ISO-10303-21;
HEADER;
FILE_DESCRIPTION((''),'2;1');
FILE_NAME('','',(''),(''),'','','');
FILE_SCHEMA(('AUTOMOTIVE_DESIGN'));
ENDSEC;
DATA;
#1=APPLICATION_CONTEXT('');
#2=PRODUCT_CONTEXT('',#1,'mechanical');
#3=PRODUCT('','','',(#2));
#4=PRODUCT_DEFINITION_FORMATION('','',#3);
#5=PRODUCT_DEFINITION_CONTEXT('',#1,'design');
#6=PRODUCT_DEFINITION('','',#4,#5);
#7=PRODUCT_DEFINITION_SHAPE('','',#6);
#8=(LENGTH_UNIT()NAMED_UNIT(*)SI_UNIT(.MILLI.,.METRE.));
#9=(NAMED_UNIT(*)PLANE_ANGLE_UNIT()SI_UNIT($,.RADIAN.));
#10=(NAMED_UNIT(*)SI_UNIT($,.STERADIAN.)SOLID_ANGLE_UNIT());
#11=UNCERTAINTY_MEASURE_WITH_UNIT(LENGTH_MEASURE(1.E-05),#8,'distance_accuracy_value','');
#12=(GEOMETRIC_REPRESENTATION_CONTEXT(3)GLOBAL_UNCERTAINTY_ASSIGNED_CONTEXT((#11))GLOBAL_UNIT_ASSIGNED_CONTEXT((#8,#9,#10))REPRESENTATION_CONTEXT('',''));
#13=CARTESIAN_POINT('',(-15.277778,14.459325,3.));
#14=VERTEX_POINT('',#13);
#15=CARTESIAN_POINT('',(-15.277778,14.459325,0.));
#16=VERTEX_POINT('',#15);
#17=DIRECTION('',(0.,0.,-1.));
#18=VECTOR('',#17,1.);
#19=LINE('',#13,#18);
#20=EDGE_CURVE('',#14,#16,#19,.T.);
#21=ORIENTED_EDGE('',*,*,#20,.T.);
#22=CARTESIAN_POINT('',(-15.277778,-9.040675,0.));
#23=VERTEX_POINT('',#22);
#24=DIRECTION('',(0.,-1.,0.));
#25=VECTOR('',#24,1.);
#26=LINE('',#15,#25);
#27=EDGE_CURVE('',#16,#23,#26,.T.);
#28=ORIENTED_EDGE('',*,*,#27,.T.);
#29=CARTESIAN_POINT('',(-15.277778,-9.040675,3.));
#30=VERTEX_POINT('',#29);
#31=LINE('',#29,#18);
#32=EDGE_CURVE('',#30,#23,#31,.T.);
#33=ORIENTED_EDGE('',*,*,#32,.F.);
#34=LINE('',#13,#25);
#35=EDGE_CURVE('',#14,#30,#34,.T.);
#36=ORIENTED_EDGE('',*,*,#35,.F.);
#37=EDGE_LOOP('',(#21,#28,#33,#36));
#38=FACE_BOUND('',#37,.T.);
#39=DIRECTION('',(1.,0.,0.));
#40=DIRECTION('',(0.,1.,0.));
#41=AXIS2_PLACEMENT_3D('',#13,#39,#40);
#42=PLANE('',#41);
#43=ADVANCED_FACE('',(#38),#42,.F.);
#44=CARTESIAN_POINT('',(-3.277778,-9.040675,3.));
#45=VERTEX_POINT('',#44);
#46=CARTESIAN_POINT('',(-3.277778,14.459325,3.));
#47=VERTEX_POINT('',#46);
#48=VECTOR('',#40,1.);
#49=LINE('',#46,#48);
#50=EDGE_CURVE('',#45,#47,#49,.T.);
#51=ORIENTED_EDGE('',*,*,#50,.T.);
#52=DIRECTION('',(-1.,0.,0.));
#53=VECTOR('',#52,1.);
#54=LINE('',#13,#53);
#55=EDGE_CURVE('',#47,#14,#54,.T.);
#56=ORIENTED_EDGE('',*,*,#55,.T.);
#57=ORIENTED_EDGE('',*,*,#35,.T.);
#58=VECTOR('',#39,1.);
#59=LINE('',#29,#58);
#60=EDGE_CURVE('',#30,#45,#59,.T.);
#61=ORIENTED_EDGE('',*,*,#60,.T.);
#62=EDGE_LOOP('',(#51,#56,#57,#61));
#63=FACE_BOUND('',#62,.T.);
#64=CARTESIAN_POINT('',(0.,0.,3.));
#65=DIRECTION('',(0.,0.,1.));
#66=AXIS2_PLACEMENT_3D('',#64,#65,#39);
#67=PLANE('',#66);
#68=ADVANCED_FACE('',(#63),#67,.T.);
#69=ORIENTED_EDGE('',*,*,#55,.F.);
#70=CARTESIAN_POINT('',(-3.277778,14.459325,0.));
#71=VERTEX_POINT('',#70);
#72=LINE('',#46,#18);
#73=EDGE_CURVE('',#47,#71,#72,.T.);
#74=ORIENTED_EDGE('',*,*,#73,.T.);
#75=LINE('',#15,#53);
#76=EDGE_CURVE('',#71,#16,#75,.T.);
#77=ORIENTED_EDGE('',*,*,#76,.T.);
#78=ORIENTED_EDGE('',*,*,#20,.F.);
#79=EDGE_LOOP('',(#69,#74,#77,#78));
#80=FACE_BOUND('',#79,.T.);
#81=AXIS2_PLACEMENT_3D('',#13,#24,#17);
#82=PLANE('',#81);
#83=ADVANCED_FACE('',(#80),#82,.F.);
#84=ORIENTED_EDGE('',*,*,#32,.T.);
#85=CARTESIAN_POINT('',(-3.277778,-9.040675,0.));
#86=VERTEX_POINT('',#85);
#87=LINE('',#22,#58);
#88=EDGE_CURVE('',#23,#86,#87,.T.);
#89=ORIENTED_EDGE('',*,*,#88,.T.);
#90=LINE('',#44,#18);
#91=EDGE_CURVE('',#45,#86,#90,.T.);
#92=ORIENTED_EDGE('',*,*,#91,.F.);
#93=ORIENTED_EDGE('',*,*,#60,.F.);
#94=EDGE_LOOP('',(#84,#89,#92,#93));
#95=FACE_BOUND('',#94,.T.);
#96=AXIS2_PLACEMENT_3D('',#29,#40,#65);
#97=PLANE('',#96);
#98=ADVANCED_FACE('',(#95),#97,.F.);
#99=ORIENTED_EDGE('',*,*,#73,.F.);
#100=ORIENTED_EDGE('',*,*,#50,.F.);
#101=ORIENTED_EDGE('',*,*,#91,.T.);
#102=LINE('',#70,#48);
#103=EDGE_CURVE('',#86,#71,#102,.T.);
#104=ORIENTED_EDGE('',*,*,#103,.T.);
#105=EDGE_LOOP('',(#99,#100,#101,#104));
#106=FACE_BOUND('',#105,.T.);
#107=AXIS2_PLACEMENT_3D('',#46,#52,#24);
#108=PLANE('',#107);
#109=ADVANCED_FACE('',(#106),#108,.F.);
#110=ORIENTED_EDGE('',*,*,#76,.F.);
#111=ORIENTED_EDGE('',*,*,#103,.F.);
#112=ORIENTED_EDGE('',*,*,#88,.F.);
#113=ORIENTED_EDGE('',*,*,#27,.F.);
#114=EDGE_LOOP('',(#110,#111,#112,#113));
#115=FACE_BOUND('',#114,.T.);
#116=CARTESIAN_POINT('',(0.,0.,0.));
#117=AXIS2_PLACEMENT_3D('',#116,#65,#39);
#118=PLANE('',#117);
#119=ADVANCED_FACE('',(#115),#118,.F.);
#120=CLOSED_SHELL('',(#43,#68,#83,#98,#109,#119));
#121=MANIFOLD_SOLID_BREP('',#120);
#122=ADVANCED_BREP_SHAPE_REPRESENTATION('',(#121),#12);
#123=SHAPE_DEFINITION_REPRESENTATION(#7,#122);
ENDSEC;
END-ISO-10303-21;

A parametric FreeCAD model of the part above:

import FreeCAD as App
import Part
import Sketcher
Q = App.Units.Quantity

doc = App.newDocument("Part")
body = doc.addObject("PartDesign::Body", "Body")

# Sketch on XY plane
sketch1 = body.newObject("Sketcher::SketchObject", "Sketch")
sketch1.AttachmentSupport = (doc.getObject("XY_Plane"), [""])
sketch1.MapMode = "FlatFace"
sketch1.addGeometry([
    Part.LineSegment(App.Vector(-15, 14, 0), App.Vector(-15, -9, 0)),
    Part.LineSegment(App.Vector(-15, -9, 0), App.Vector(-3, -9, 0)),
    Part.LineSegment(App.Vector(-3, -9, 0), App.Vector(-3, 14, 0)),
    Part.LineSegment(App.Vector(-3, 14, 0), App.Vector(-15, 14, 0)),
], False)
sketch1.addConstraint([
    Sketcher.Constraint("Coincident", 0, 2, 1, 1),
    Sketcher.Constraint("Coincident", 1, 2, 2, 1),
    Sketcher.Constraint("Coincident", 2, 2, 3, 1),
    Sketcher.Constraint("Coincident", 3, 2, 0, 1),
    Sketcher.Constraint("Vertical", 0),
    Sketcher.Constraint("Horizontal", 1),
    Sketcher.Constraint("Vertical", 2),
    Sketcher.Constraint("Horizontal", 3),
    Sketcher.Constraint("DistanceX", 1, 1, 1, 2, Q("12 mm")),
    Sketcher.Constraint("DistanceY", 0, 2, 0, 1, Q("23.5 mm")),
    Sketcher.Constraint("DistanceX", 0, 2, -1, 1, Q("15.277778 mm")),
    Sketcher.Constraint("DistanceY", 0, 2, -1, 1, Q("9.040675 mm")),
])
pad1 = body.newObject("PartDesign::Pad", "Pad")
pad1.Profile = sketch1
pad1.Length = 3

doc.recompute()
